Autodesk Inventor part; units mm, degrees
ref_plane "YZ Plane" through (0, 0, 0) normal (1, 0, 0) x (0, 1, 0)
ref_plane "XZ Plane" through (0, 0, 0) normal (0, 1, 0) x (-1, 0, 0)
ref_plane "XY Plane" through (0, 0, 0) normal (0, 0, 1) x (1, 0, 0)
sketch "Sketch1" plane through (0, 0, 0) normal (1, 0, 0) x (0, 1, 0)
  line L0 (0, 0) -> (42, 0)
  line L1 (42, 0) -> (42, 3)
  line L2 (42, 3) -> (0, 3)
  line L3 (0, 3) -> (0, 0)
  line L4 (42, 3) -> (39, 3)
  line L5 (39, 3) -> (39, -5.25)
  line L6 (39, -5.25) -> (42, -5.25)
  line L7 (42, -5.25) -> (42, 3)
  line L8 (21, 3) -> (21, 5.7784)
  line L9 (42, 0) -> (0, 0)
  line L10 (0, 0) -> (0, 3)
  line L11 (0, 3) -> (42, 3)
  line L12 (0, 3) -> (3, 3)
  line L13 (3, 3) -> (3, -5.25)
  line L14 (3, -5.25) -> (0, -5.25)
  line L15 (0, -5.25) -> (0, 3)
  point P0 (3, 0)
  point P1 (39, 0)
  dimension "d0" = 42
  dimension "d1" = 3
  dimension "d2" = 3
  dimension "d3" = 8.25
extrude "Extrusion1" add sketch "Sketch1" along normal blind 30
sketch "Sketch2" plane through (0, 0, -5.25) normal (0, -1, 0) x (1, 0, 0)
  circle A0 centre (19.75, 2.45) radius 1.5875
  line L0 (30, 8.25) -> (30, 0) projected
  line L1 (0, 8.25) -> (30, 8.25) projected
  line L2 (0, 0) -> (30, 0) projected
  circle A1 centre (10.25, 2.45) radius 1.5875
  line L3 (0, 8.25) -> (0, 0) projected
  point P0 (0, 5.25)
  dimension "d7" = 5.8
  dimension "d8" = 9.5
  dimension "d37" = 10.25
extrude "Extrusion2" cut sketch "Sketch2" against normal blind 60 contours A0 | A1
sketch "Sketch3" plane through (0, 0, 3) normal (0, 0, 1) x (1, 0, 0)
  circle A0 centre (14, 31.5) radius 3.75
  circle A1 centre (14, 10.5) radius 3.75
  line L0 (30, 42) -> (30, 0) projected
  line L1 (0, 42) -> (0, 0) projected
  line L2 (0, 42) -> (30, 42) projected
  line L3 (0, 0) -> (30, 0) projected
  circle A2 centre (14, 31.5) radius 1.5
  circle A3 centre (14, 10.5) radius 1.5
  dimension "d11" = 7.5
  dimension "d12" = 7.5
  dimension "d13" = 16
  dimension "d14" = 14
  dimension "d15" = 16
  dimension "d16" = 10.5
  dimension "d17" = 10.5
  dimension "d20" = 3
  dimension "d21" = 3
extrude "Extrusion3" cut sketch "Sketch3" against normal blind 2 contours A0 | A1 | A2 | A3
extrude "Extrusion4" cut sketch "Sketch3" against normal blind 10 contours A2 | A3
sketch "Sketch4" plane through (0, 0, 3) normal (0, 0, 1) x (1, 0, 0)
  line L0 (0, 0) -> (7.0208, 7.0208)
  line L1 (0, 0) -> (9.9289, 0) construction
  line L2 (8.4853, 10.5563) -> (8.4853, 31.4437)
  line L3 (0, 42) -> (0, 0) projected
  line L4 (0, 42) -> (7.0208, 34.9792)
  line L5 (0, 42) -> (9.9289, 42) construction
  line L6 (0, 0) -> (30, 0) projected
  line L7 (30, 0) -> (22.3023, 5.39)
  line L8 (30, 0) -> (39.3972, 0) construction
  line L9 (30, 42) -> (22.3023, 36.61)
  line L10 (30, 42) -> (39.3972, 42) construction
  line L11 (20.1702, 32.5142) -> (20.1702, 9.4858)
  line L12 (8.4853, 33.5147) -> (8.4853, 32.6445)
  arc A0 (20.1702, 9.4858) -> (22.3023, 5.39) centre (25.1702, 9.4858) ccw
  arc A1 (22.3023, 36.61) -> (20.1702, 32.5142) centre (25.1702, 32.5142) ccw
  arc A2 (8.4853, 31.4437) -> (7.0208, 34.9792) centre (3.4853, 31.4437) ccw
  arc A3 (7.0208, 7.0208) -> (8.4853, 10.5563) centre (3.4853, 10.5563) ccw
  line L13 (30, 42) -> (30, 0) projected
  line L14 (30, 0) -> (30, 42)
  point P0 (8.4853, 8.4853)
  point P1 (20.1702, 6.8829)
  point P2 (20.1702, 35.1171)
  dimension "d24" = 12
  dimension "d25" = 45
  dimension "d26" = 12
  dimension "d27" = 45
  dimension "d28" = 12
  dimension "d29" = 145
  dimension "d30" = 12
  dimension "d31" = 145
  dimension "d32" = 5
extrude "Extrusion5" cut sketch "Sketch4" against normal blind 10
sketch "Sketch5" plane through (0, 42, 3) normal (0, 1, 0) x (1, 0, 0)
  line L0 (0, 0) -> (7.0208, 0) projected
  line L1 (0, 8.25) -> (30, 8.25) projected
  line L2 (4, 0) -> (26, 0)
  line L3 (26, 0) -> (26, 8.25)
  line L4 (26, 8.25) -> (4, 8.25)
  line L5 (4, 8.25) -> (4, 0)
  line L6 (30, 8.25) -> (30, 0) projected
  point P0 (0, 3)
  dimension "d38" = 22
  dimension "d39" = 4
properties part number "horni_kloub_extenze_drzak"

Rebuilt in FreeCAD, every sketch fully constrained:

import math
import FreeCAD as App
import Part
import Sketcher
Q = App.Units.Quantity

doc = App.newDocument("Part")
body = doc.addObject("PartDesign::Body", "Body")

# Sketch on YZ plane
sketch1 = body.newObject("Sketcher::SketchObject", "Sketch")
sketch1.AttachmentSupport = (doc.getObject("YZ_Plane"), [""])
sketch1.MapMode = "FlatFace"
sketch1.addGeometry([
    Part.LineSegment(App.Vector(0, 3, 0), App.Vector(0, -5.2, 0)),  # 0
    Part.LineSegment(App.Vector(0, -5.2, 0), App.Vector(3, -5.2, 0)),  # 1
    Part.LineSegment(App.Vector(3, -5.2, 0), App.Vector(3, 0, 0)),  # 2
    Part.LineSegment(App.Vector(3, 0, 0), App.Vector(39, 0, 0)),  # 3
    Part.LineSegment(App.Vector(39, 0, 0), App.Vector(39, -5.2, 0)),  # 4
    Part.LineSegment(App.Vector(39, -5.2, 0), App.Vector(42, -5.2, 0)),  # 5
    Part.LineSegment(App.Vector(42, -5.2, 0), App.Vector(42, 3, 0)),  # 6
    Part.LineSegment(App.Vector(42, 3, 0), App.Vector(0, 3, 0)),  # 7
], False)
sketch1.addConstraint([
    Sketcher.Constraint("Coincident", 0, 2, 1, 1),
    Sketcher.Constraint("Coincident", 1, 2, 2, 1),
    Sketcher.Constraint("Coincident", 2, 2, 3, 1),
    Sketcher.Constraint("Coincident", 3, 2, 4, 1),
    Sketcher.Constraint("Coincident", 4, 2, 5, 1),
    Sketcher.Constraint("Coincident", 5, 2, 6, 1),
    Sketcher.Constraint("Coincident", 6, 2, 7, 1),
    Sketcher.Constraint("Coincident", 7, 2, 0, 1),
    Sketcher.Constraint("Vertical", 0),
    Sketcher.Constraint("Horizontal", 1),
    Sketcher.Constraint("Vertical", 2),
    Sketcher.Constraint("Horizontal", 3),
    Sketcher.Constraint("Vertical", 4),
    Sketcher.Constraint("Horizontal", 5),
    Sketcher.Constraint("Vertical", 6),
    Sketcher.Constraint("Horizontal", 7),
    Sketcher.Constraint("PointOnObject", 0, 2, -2),
    Sketcher.Constraint("PointOnObject", 2, 2, -1),
    Sketcher.Constraint("Horizontal", 1, 2, 4, 2),
    Sketcher.Constraint("Equal", 1, 5),
    Sketcher.Constraint("DistanceX", 1, 1, 1, 2, 3.0),
    Sketcher.Constraint("DistanceX", 7, 2, 7, 1, 42.0),
    Sketcher.Constraint("DistanceY", -1, 1, 6, 2, 3.0),
    Sketcher.Constraint("DistanceY", 0, 2, 0, 1, 8.25),
])
pad1 = body.newObject("PartDesign::Pad", "Pad")
pad1.Profile = sketch1
pad1.Length = 30

# Sketch on XZ plane
sketch2 = body.newObject("Sketcher::SketchObject", "Sketch001")
sketch2.AttachmentSupport = (doc.getObject("XZ_Plane"), [""])
sketch2.MapMode = "FlatFace"
sketch2.addGeometry([
    Part.Circle(App.Vector(19.8, -2.8, 0), App.Vector(0, 0, 1), 1.6),
    Part.Circle(App.Vector(10.2, -2.8, 0), App.Vector(0, 0, 1), 1.6),
], False)
sketch2.addConstraint([
    Sketcher.Constraint("Equal", 0, 1),
    Sketcher.Constraint("Horizontal", 0, 3, 1, 3),
    Sketcher.Constraint("DistanceX", 1, 3, 0, 3, 9.5),
    Sketcher.Constraint("DistanceX", -1, 1, 1, 3, 10.25),
    Sketcher.Constraint("Diameter", 0, 3.175),
    Sketcher.Constraint("DistanceY", 0, 3, -1, 1, 2.8),
])
pocket1 = body.newObject("PartDesign::Pocket", "Pocket")
pocket1.Profile = sketch2
pocket1.Length = 60

# Sketch on XY plane
sketch3 = body.newObject("Sketcher::SketchObject", "Sketch002")
sketch3.AttachmentSupport = (doc.getObject("XY_Plane"), [""])
sketch3.MapMode = "FlatFace"
sketch3.AttachmentOffset = App.Placement(App.Vector(0, 0, 3), App.Rotation())
sketch3.addGeometry([
    Part.Circle(App.Vector(14, 31.5, 0), App.Vector(0, 0, 1), 3.8),
    Part.Circle(App.Vector(14, 10.5, 0), App.Vector(0, 0, 1), 3.8),
], False)
sketch3.addConstraint([
    Sketcher.Constraint("Equal", 0, 1),
    Sketcher.Constraint("Vertical", 0, 3, 1, 3),
    Sketcher.Constraint("Diameter", 0, 7.5),
    Sketcher.Constraint("DistanceX", -1, 1, 0, 3, 14.0),
    Sketcher.Constraint("DistanceY", -1, 1, 1, 3, 10.5),
    Sketcher.Constraint("DistanceY", 1, 3, 0, 3, 21.0),
])
pocket2 = body.newObject("PartDesign::Pocket", "Pocket001")
pocket2.Profile = sketch3
pocket2.Length = 2

# Sketch on XY plane
sketch4 = body.newObject("Sketcher::SketchObject", "Sketch003")
sketch4.AttachmentSupport = (doc.getObject("XY_Plane"), [""])
sketch4.MapMode = "FlatFace"
sketch4.AttachmentOffset = App.Placement(App.Vector(0, 0, 3), App.Rotation())
sketch4.addGeometry([
    Part.Circle(App.Vector(14, 31.5, 0), App.Vector(0, 0, 1), 1.5),
    Part.Circle(App.Vector(14, 10.5, 0), App.Vector(0, 0, 1), 1.5),
], False)
sketch4.addConstraint([
    Sketcher.Constraint("Equal", 0, 1),
    Sketcher.Constraint("Vertical", 0, 3, 1, 3),
    Sketcher.Constraint("Diameter", 0, 3.0),
    Sketcher.Constraint("DistanceX", -1, 1, 0, 3, 14.0),
    Sketcher.Constraint("DistanceY", -1, 1, 1, 3, 10.5),
    Sketcher.Constraint("DistanceY", 1, 3, 0, 3, 21.0),
])
pocket3 = body.newObject("PartDesign::Pocket", "Pocket002")
pocket3.Profile = sketch4
pocket3.Length = 10

# Sketch on XY plane
sketch5 = body.newObject("Sketcher::SketchObject", "Sketch004")
sketch5.AttachmentSupport = (doc.getObject("XY_Plane"), [""])
sketch5.MapMode = "FlatFace"
sketch5.AttachmentOffset = App.Placement(App.Vector(0, 0, 3), App.Rotation())
sketch5.addGeometry([
    Part.LineSegment(App.Vector(0, 42, 0), App.Vector(0, 0, 0)),  # 0
    Part.LineSegment(App.Vector(0, 0, 0), App.Vector(7, 7, 0)),  # 1
    Part.ArcOfCircle(Part.Circle(App.Vector(3.5, 10.6, 0), App.Vector(0, 0, 1), 5), math.radians(-45), math.radians(0)),  # 2
    Part.LineSegment(App.Vector(8.5, 10.6, 0), App.Vector(8.5, 31.4, 0)),  # 3
    Part.ArcOfCircle(Part.Circle(App.Vector(3.5, 31.4, 0), App.Vector(0, 0, 1), 5), math.radians(0), math.radians(45)),  # 4
    Part.LineSegment(App.Vector(7, 35, 0), App.Vector(0, 42, 0)),  # 5
    Part.LineSegment(App.Vector(22.3, 5.4, 0), App.Vector(30, 0, 0)),  # 6
    Part.LineSegment(App.Vector(30, 0, 0), App.Vector(30, 42, 0)),  # 7
    Part.LineSegment(App.Vector(30, 42, 0), App.Vector(22.3, 36.6, 0)),  # 8
    Part.ArcOfCircle(Part.Circle(App.Vector(25.2, 32.5, 0), App.Vector(0, 0, 1), 5), math.radians(125), math.radians(180)),  # 9
    Part.LineSegment(App.Vector(20.2, 32.5, 0), App.Vector(20.2, 9.5, 0)),  # 10
    Part.ArcOfCircle(Part.Circle(App.Vector(25.2, 9.5, 0), App.Vector(0, 0, 1), 5), math.radians(180), math.radians(235)),  # 11
], False)
sketch5.addConstraint([
    Sketcher.Constraint("Coincident", 0, 2, 1, 1),
    Sketcher.Constraint("Tangent", 1, 2, 2, 1),
    Sketcher.Constraint("Tangent", 2, 2, 3, 1),
    Sketcher.Constraint("Tangent", 3, 2, 4, 1),
    Sketcher.Constraint("Tangent", 4, 2, 5, 1),
    Sketcher.Constraint("Coincident", 5, 2, 0, 1),
    Sketcher.Constraint("Coincident", 6, 2, 7, 1),
    Sketcher.Constraint("Coincident", 7, 2, 8, 1),
    Sketcher.Constraint("Tangent", 8, 2, 9, 1),
    Sketcher.Constraint("Tangent", 9, 2, 10, 1),
    Sketcher.Constraint("Tangent", 10, 2, 11, 1),
    Sketcher.Constraint("Tangent", 11, 2, 6, 1),
    Sketcher.Constraint("Vertical", 0),
    Sketcher.Constraint("Vertical", 3),
    Sketcher.Constraint("Vertical", 7),
    Sketcher.Constraint("Vertical", 10),
    Sketcher.Constraint("Coincident", 0, 2, -1, 1),
    Sketcher.Constraint("Equal", 2, 4),
    Sketcher.Constraint("Equal", 4, 9),
    Sketcher.Constraint("Equal", 9, 11),
    Sketcher.Constraint("PointOnObject", 6, 2, -1),
    Sketcher.Constraint("Perpendicular", 1, 5),
    Sketcher.Constraint("Horizontal", 5, 2, 7, 2),
    Sketcher.Constraint("Vertical", 1, 2, 4, 2),
    Sketcher.Constraint("Vertical", 8, 2, 11, 2),
    Sketcher.Constraint("Radius", 2, 5.0),
    Sketcher.Constraint("Angle", 8, Q("-145 deg")),
    Sketcher.Constraint("DistanceY", 0, 2, 0, 1, 42.0),
    Sketcher.Constraint("DistanceX", -1, 1, 6, 2, 30.0),
    Sketcher.Constraint("DistanceY", -1, 1, 8, 2, 36.61),
    Sketcher.Constraint("Distance", 1, 9.929),
])
pocket4 = body.newObject("PartDesign::Pocket", "Pocket003")
pocket4.Profile = sketch5
pocket4.Length = 10

doc.recompute()
